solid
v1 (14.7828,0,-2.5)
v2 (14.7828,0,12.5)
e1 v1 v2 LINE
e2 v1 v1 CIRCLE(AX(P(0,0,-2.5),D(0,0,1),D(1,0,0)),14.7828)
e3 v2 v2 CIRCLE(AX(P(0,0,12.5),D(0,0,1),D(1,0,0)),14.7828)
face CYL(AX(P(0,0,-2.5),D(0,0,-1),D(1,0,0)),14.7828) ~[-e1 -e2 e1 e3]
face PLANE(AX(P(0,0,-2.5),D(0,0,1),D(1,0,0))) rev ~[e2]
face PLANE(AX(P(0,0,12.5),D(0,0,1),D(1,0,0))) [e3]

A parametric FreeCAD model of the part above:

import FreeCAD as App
import Part
import Sketcher

doc = App.newDocument("Part")
body = doc.addObject("PartDesign::Body", "Body")

# Sketch on XY plane
sketch1 = body.newObject("Sketcher::SketchObject", "Sketch")
sketch1.AttachmentSupport = (doc.getObject("XY_Plane"), [""])
sketch1.MapMode = "FlatFace"
sketch1.AttachmentOffset = App.Placement(App.Vector(0, 0, -2.5), App.Rotation())
sketch1.addGeometry(Part.Circle(App.Vector(0, 0, 0), App.Vector(0, 0, 1), 15), False)
sketch1.addConstraint([
    Sketcher.Constraint("Coincident", 0, 3, -1, 1),
    Sketcher.Constraint("Diameter", 0, 29.5656),
])
pad1 = body.newObject("PartDesign::Pad", "Pad")
pad1.Profile = sketch1
pad1.Length = 15

doc.recompute()
